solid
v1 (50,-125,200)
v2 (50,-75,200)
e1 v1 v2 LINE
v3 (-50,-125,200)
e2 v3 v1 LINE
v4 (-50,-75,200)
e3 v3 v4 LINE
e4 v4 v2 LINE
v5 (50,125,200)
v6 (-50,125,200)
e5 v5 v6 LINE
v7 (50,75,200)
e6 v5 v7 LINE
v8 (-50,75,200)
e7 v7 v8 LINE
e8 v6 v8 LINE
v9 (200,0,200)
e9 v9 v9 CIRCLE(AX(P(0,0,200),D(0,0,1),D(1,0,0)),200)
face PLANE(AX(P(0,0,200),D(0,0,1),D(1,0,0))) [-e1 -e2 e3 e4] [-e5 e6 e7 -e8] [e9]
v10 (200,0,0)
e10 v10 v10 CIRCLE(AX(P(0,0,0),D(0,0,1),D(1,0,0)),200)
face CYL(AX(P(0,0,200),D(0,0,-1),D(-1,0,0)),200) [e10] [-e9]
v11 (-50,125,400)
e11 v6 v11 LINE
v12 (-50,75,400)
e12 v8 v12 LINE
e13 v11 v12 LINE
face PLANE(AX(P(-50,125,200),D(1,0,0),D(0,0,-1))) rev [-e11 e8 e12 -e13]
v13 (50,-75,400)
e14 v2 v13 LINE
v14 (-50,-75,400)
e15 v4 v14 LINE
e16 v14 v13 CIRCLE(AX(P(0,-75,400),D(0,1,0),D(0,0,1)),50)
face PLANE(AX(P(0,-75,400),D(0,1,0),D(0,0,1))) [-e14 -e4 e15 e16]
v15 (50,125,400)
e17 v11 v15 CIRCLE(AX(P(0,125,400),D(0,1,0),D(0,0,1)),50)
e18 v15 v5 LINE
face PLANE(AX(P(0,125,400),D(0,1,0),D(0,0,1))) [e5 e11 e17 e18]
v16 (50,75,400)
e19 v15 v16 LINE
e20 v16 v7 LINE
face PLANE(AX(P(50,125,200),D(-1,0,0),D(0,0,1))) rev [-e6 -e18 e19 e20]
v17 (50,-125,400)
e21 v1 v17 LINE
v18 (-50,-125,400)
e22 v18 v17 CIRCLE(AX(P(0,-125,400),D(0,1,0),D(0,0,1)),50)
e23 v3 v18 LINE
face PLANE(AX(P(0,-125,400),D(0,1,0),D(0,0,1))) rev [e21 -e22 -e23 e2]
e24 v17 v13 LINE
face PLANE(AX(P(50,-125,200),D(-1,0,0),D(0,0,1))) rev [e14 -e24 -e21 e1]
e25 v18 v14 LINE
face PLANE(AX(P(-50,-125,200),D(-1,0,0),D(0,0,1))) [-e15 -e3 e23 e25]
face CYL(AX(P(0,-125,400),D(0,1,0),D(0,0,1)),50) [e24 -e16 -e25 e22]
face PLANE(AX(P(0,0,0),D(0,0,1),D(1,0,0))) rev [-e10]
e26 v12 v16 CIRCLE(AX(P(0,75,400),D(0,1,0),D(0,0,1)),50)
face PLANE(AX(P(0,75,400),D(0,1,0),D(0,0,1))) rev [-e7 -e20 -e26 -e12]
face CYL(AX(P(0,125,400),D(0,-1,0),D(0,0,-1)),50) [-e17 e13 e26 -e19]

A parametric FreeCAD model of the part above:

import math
import FreeCAD as App
import Part
import Sketcher

doc = App.newDocument("Part")
body = doc.addObject("PartDesign::Body", "Body")

# Sketch on XY plane
sketch1 = body.newObject("Sketcher::SketchObject", "Sketch")
sketch1.AttachmentSupport = (doc.getObject("XY_Plane"), [""])
sketch1.MapMode = "FlatFace"
sketch1.addGeometry(Part.Circle(App.Vector(0, 0, 0), App.Vector(0, 0, 1), 200), False)
sketch1.addConstraint([
    Sketcher.Constraint("Coincident", 0, 3, -1, 1),
    Sketcher.Constraint("Diameter", 0, 400.0),
])
pad1 = body.newObject("PartDesign::Pad", "Pad")
pad1.Profile = sketch1
pad1.Length = 200

# Sketch on XZ plane
sketch2 = body.newObject("Sketcher::SketchObject", "Sketch001")
sketch2.AttachmentSupport = (doc.getObject("XZ_Plane"), [""])
sketch2.MapMode = "FlatFace"
sketch2.AttachmentOffset = App.Placement(App.Vector(0, 0, -75), App.Rotation())
sketch2.addGeometry([
    Part.LineSegment(App.Vector(-50, 200, 0), App.Vector(-50, 400, 0)),
    Part.ArcOfCircle(Part.Circle(App.Vector(0, 400, 0), App.Vector(0, 0, 1), 50), math.radians(0), math.radians(180)),
    Part.LineSegment(App.Vector(50, 400, 0), App.Vector(50, 200, 0)),
    Part.LineSegment(App.Vector(50, 200, 0), App.Vector(-50, 200, 0)),
], False)
sketch2.addConstraint([
    Sketcher.Constraint("Tangent", 0, 2, 1, 2),
    Sketcher.Constraint("Tangent", 1, 1, 2, 1),
    Sketcher.Constraint("Coincident", 2, 2, 3, 1),
    Sketcher.Constraint("Coincident", 3, 2, 0, 1),
    Sketcher.Constraint("Vertical", 0),
    Sketcher.Constraint("Vertical", 2),
    Sketcher.Constraint("Horizontal", 3),
    Sketcher.Constraint("PointOnObject", 1, 3, -2),
    Sketcher.Constraint("Radius", 1, 50.0),
    Sketcher.Constraint("DistanceY", 0, 1, 0, 2, 200.0),
    Sketcher.Constraint("DistanceY", -1, 1, 1, 3, 400.0),
])
pad2 = body.newObject("PartDesign::Pad", "Pad001")
pad2.Profile = sketch2
pad2.Length = 50
pad2.Reversed = True

# Sketch on XZ plane
sketch3 = body.newObject("Sketcher::SketchObject", "Sketch002")
sketch3.AttachmentSupport = (doc.getObject("XZ_Plane"), [""])
sketch3.MapMode = "FlatFace"
sketch3.AttachmentOffset = App.Placement(App.Vector(0, 0, 125), App.Rotation())
sketch3.addGeometry([
    Part.LineSegment(App.Vector(-50, 200, 0), App.Vector(-50, 400, 0)),
    Part.ArcOfCircle(Part.Circle(App.Vector(0, 400, 0), App.Vector(0, 0, 1), 50), math.radians(0), math.radians(180)),
    Part.LineSegment(App.Vector(50, 400, 0), App.Vector(50, 200, 0)),
    Part.LineSegment(App.Vector(50, 200, 0), App.Vector(-50, 200, 0)),
], False)
sketch3.addConstraint([
    Sketcher.Constraint("Tangent", 0, 2, 1, 2),
    Sketcher.Constraint("Tangent", 1, 1, 2, 1),
    Sketcher.Constraint("Coincident", 2, 2, 3, 1),
    Sketcher.Constraint("Coincident", 3, 2, 0, 1),
    Sketcher.Constraint("Vertical", 0),
    Sketcher.Constraint("Vertical", 2),
    Sketcher.Constraint("Horizontal", 3),
    Sketcher.Constraint("PointOnObject", 1, 3, -2),
    Sketcher.Constraint("Radius", 1, 50.0),
    Sketcher.Constraint("DistanceY", 0, 1, 0, 2, 200.0),
    Sketcher.Constraint("DistanceY", -1, 1, 1, 3, 400.0),
])
pad3 = body.newObject("PartDesign::Pad", "Pad002")
pad3.Profile = sketch3
pad3.Length = 50
pad3.Reversed = True

doc.recompute()
